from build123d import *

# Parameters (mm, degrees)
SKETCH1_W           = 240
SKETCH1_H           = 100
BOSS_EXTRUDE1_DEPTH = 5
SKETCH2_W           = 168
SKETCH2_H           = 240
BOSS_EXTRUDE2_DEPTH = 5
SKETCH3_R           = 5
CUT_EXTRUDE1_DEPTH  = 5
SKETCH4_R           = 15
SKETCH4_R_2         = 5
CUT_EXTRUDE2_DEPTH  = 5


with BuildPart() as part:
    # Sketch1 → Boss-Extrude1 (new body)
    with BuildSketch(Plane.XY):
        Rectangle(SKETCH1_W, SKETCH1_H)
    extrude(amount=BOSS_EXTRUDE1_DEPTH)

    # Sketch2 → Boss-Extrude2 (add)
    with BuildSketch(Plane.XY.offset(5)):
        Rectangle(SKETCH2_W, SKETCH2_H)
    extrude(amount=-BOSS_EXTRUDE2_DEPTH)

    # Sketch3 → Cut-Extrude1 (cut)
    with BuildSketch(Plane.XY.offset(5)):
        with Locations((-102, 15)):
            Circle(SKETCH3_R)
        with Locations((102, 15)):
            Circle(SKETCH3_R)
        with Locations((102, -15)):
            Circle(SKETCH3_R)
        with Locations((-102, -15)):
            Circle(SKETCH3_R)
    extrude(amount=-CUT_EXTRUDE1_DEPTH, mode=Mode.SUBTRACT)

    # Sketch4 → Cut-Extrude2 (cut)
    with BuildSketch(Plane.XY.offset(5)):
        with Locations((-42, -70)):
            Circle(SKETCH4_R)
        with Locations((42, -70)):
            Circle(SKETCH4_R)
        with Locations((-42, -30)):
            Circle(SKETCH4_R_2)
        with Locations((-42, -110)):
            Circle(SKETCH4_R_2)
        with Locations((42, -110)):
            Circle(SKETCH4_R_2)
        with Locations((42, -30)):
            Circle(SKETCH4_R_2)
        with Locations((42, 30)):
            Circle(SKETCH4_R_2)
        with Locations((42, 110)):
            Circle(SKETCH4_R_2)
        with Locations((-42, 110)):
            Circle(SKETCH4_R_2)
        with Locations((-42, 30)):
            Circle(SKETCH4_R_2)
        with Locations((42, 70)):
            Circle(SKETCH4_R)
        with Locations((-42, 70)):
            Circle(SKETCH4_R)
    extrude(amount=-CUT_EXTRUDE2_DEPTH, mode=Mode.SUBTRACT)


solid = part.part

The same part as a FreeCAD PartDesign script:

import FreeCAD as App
import Part
import Sketcher
Q = App.Units.Quantity

doc = App.newDocument("Part")
body = doc.addObject("PartDesign::Body", "Body")

# Sketch on XY plane
sketch1 = body.newObject("Sketcher::SketchObject", "Sketch")
sketch1.AttachmentSupport = (doc.getObject("XY_Plane"), [""])
sketch1.MapMode = "FlatFace"
sketch1.addGeometry([
    Part.LineSegment(App.Vector(-120, 50, 0), App.Vector(-120, -50, 0)),
    Part.LineSegment(App.Vector(-120, -50, 0), App.Vector(120, -50, 0)),
    Part.LineSegment(App.Vector(120, -50, 0), App.Vector(120, 50, 0)),
    Part.LineSegment(App.Vector(120, 50, 0), App.Vector(-120, 50, 0)),
], False)
sketch1.addConstraint([
    Sketcher.Constraint("Coincident", 0, 2, 1, 1),
    Sketcher.Constraint("Coincident", 1, 2, 2, 1),
    Sketcher.Constraint("Coincident", 2, 2, 3, 1),
    Sketcher.Constraint("Coincident", 3, 2, 0, 1),
    Sketcher.Constraint("Vertical", 0),
    Sketcher.Constraint("Horizontal", 1),
    Sketcher.Constraint("Vertical", 2),
    Sketcher.Constraint("Horizontal", 3),
    Sketcher.Constraint("Symmetric", 0, 2, 2, 2, -1, 1),
    Sketcher.Constraint("DistanceX", 1, 1, 1, 2, Q("240 mm")),
    Sketcher.Constraint("DistanceY", 0, 2, 0, 1, Q("100 mm")),
])
pad1 = body.newObject("PartDesign::Pad", "Pad")
pad1.Profile = sketch1
pad1.Length = 5

# Sketch on XY plane
sketch2 = body.newObject("Sketcher::SketchObject", "Sketch001")
sketch2.AttachmentSupport = (doc.getObject("XY_Plane"), [""])
sketch2.MapMode = "FlatFace"
sketch2.AttachmentOffset = App.Placement(App.Vector(0, 0, 5), App.Rotation())
sketch2.addGeometry([
    Part.LineSegment(App.Vector(-84, 120, 0), App.Vector(-84, -120, 0)),
    Part.LineSegment(App.Vector(-84, -120, 0), App.Vector(84, -120, 0)),
    Part.LineSegment(App.Vector(84, -120, 0), App.Vector(84, 120, 0)),
    Part.LineSegment(App.Vector(84, 120, 0), App.Vector(-84, 120, 0)),
], False)
sketch2.addConstraint([
    Sketcher.Constraint("Coincident", 0, 2, 1, 1),
    Sketcher.Constraint("Coincident", 1, 2, 2, 1),
    Sketcher.Constraint("Coincident", 2, 2, 3, 1),
    Sketcher.Constraint("Coincident", 3, 2, 0, 1),
    Sketcher.Constraint("Vertical", 0),
    Sketcher.Constraint("Horizontal", 1),
    Sketcher.Constraint("Vertical", 2),
    Sketcher.Constraint("Horizontal", 3),
    Sketcher.Constraint("Symmetric", 0, 2, 2, 2, -1, 1),
    Sketcher.Constraint("DistanceX", 1, 1, 1, 2, Q("168 mm")),
    Sketcher.Constraint("DistanceY", 0, 2, 0, 1, Q("240 mm")),
])
pad2 = body.newObject("PartDesign::Pad", "Pad001")
pad2.Profile = sketch2
pad2.Length = 5
pad2.Reversed = True

# Sketch on XY plane
sketch3 = body.newObject("Sketcher::SketchObject", "Sketch002")
sketch3.AttachmentSupport = (doc.getObject("XY_Plane"), [""])
sketch3.MapMode = "FlatFace"
sketch3.AttachmentOffset = App.Placement(App.Vector(0, 0, 5), App.Rotation())
sketch3.addGeometry([
    Part.Circle(App.Vector(-102, 15, 0), App.Vector(0, 0, 1), 5),
    Part.Circle(App.Vector(102, 15, 0), App.Vector(0, 0, 1), 5),
    Part.Circle(App.Vector(102, -15, 0), App.Vector(0, 0, 1), 5),
    Part.Circle(App.Vector(-102, -15, 0), App.Vector(0, 0, 1), 5),
], False)
sketch3.addConstraint([
    Sketcher.Constraint("Equal", 0, 1),
    Sketcher.Constraint("Equal", 1, 2),
    Sketcher.Constraint("Equal", 2, 3),
    Sketcher.Constraint("Symmetric", 0, 3, 2, 3, -1, 1),
    Sketcher.Constraint("Symmetric", 1, 3, 3, 3, -1, 1),
    Sketcher.Constraint("Symmetric", 0, 3, 1, 3, -2),
    Sketcher.Constraint("Diameter", 0, Q("10 mm")),
    Sketcher.Constraint("DistanceX", 0, 3, -1, 1, Q("102 mm")),
    Sketcher.Constraint("DistanceY", -1, 1, 0, 3, Q("15 mm")),
])
pocket1 = body.newObject("PartDesign::Pocket", "Pocket")
pocket1.Profile = sketch3
pocket1.Length = 5

# Sketch on XY plane
sketch4 = body.newObject("Sketcher::SketchObject", "Sketch003")
sketch4.AttachmentSupport = (doc.getObject("XY_Plane"), [""])
sketch4.MapMode = "FlatFace"
sketch4.AttachmentOffset = App.Placement(App.Vector(0, 0, 5), App.Rotation())
sketch4.addGeometry([
    Part.Circle(App.Vector(-42, -70, 0), App.Vector(0, 0, 1), 15),  # 0
    Part.Circle(App.Vector(42, -70, 0), App.Vector(0, 0, 1), 15),  # 1
    Part.Circle(App.Vector(-42, -30, 0), App.Vector(0, 0, 1), 5),  # 2
    Part.Circle(App.Vector(-42, -110, 0), App.Vector(0, 0, 1), 5),  # 3
    Part.Circle(App.Vector(42, -110, 0), App.Vector(0, 0, 1), 5),  # 4
    Part.Circle(App.Vector(42, -30, 0), App.Vector(0, 0, 1), 5),  # 5
    Part.Circle(App.Vector(42, 30, 0), App.Vector(0, 0, 1), 5),  # 6
    Part.Circle(App.Vector(42, 110, 0), App.Vector(0, 0, 1), 5),  # 7
    Part.Circle(App.Vector(-42, 110, 0), App.Vector(0, 0, 1), 5),  # 8
    Part.Circle(App.Vector(-42, 30, 0), App.Vector(0, 0, 1), 5),  # 9
    Part.Circle(App.Vector(42, 70, 0), App.Vector(0, 0, 1), 15),  # 10
    Part.Circle(App.Vector(-42, 70, 0), App.Vector(0, 0, 1), 15),  # 11
], False)
sketch4.addConstraint([
    Sketcher.Constraint("Equal", 0, 1),
    Sketcher.Constraint("Equal", 2, 3),
    Sketcher.Constraint("Equal", 3, 4),
    Sketcher.Constraint("Equal", 4, 5),
    Sketcher.Constraint("Equal", 5, 6),
    Sketcher.Constraint("Equal", 6, 7),
    Sketcher.Constraint("Equal", 7, 8),
    Sketcher.Constraint("Equal", 8, 9),
    Sketcher.Constraint("Equal", 1, 10),
    Sketcher.Constraint("Equal", 10, 11),
    Sketcher.Constraint("Symmetric", 2, 3, 6, 3, -1, 1),
    Sketcher.Constraint("Symmetric", 3, 3, 7, 3, -1, 1),
    Sketcher.Constraint("Symmetric", 4, 3, 8, 3, -1, 1),
    Sketcher.Constraint("Symmetric", 5, 3, 9, 3, -1, 1),
    Sketcher.Constraint("Symmetric", 0, 3, 10, 3, -1, 1),
    Sketcher.Constraint("Symmetric", 1, 3, 11, 3, -1, 1),
    Sketcher.Constraint("Symmetric", 0, 3, 1, 3, -2),
    Sketcher.Constraint("Symmetric", 3, 3, 4, 3, -2),
    Sketcher.Constraint("Symmetric", 2, 3, 5, 3, -2),
    Sketcher.Constraint("Vertical", 0, 3, 2, 3),
    Sketcher.Constraint("Vertical", 2, 3, 3, 3),
    Sketcher.Constraint("Diameter", 0, Q("30 mm")),
    Sketcher.Constraint("Diameter", 2, Q("10 mm")),
    Sketcher.Constraint("DistanceX", 0, 3, -1, 1, Q("42 mm")),
    Sketcher.Constraint("DistanceY", 0, 3, -1, 1, Q("70 mm")),
    Sketcher.Constraint("DistanceY", 2, 3, -1, 1, Q("30 mm")),
    Sketcher.Constraint("DistanceY", 3, 3, -1, 1, Q("110 mm")),
])
pocket2 = body.newObject("PartDesign::Pocket", "Pocket001")
pocket2.Profile = sketch4
pocket2.Length = 5

doc.recompute()
